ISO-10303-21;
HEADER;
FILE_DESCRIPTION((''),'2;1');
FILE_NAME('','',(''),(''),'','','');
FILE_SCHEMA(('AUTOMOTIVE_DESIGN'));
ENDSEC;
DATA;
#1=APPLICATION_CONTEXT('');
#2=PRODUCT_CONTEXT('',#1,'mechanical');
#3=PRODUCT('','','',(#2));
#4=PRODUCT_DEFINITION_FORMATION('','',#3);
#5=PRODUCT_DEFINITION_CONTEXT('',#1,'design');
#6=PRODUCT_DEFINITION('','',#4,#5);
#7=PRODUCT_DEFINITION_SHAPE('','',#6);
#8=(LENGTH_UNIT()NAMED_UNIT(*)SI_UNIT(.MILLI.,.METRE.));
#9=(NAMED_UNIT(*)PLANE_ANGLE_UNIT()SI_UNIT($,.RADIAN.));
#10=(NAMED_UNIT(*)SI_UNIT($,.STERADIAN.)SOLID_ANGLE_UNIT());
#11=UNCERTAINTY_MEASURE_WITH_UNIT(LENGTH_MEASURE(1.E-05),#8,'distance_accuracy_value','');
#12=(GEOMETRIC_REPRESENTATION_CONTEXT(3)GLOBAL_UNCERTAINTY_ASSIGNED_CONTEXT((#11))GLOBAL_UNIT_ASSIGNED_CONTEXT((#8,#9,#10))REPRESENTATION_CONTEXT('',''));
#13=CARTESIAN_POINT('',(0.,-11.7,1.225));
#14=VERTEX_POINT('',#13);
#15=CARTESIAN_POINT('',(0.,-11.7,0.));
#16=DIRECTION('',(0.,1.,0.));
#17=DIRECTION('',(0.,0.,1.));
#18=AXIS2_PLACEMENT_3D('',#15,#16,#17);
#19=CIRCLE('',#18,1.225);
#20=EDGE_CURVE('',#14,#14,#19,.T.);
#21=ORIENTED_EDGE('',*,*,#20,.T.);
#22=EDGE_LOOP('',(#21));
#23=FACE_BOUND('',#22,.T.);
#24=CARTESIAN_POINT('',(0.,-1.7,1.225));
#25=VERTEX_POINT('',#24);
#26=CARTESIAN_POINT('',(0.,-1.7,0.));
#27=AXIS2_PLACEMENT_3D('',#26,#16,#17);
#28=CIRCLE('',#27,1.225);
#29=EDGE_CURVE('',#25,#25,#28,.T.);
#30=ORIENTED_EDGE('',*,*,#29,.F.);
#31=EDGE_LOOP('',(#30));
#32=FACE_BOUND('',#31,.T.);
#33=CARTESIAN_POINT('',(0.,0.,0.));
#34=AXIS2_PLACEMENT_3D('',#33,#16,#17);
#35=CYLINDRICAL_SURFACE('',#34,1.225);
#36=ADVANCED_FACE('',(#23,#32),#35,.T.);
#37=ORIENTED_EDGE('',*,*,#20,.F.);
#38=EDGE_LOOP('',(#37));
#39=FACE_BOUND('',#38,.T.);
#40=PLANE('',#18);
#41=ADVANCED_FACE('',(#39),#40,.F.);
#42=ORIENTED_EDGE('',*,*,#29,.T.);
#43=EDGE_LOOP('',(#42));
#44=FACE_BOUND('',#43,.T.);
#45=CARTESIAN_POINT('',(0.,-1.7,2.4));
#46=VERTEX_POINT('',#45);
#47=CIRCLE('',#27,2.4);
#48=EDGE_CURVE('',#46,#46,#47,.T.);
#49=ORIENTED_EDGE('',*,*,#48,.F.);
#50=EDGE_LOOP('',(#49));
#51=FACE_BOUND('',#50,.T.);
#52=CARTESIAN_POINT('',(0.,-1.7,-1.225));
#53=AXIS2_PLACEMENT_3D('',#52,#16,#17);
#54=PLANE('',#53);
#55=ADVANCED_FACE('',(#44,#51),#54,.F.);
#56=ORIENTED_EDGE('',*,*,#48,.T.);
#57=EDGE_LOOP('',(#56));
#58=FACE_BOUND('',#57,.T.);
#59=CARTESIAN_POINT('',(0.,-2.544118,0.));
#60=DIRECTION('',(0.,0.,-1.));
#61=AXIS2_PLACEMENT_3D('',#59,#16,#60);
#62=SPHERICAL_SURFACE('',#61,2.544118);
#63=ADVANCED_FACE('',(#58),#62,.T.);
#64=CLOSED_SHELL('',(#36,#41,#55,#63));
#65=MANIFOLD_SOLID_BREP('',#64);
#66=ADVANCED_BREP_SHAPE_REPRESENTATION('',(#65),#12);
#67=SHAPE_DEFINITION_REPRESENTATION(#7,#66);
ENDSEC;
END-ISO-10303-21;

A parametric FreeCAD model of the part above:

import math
import FreeCAD as App
import Part
import Sketcher

V = App.Vector
Q = App.Units.Quantity

doc = App.newDocument("Part")
params = doc.addObject("Spreadsheet::Sheet", "Params")
for row, (alias, value) in enumerate([
    ("sketch1_width", "10 mm"),
    ("sketch1_width2", "11.7 mm"),
    ("revolution_angle", "360 deg"),
], start=1):
    params.set(f"A{row}", alias)
    params.set(f"B{row}", "=" + value)
    params.setAlias(f"B{row}", alias)

body = doc.addObject("PartDesign::Body", "Body")

# Sketch on YZ plane
sketch1 = body.newObject("Sketcher::SketchObject", "Sketch")
sketch1.AttachmentSupport = (doc.getObject("YZ_Plane"), [""])
sketch1.MapMode = "FlatFace"
sketch1.addGeometry([
    Part.LineSegment(V(-11.7, 0, 0), V(-11.7, -1.2, 0)),  # 0
    Part.LineSegment(V(-11.7, -1.2, 0), V(-1.7, -1.2, 0)),  # 1
    Part.LineSegment(V(-1.7, -1.2, 0), V(-1.7, -2.4, 0)),  # 2
    Part.ArcOfCircle(Part.Circle(V(-2.5, 0, 0), V(0, 0, 1), 2.5), math.radians(-71), math.radians(0)),  # 3
    Part.LineSegment(V(0, 0, 0), V(-11.7, 0, 0)),  # 4
], False)
sketch1.addConstraint([
    Sketcher.Constraint("Coincident", 0, 2, 1, 1),
    Sketcher.Constraint("Coincident", 1, 2, 2, 1),
    Sketcher.Constraint("Coincident", 2, 2, 3, 1),
    Sketcher.Constraint("Coincident", 3, 2, 4, 1),
    Sketcher.Constraint("Coincident", 4, 2, 0, 1),
    Sketcher.Constraint("Vertical", 0),
    Sketcher.Constraint("Horizontal", 1),
    Sketcher.Constraint("Vertical", 2),
    Sketcher.Constraint("Horizontal", 4),
    Sketcher.Constraint("Coincident", 3, 2, -1, 1),
    Sketcher.Constraint("PointOnObject", 3, 3, -1),
    Sketcher.Constraint("DistanceX", 1, 1, 1, 2, Q("10 mm")),
    Sketcher.Constraint("DistanceX", 4, 2, 4, 1, Q("11.7 mm")),
    Sketcher.Constraint("DistanceY", 2, 2, -1, 1, Q("2.4 mm")),
    Sketcher.Constraint("DistanceY", 0, 2, 0, 1, Q("1.225 mm")),
])
sketch1.setExpression("Constraints[11]", "Params.sketch1_width")
sketch1.setExpression("Constraints[12]", "Params.sketch1_width2")
revolution = body.newObject("PartDesign::Revolution", "Revolution")
revolution.Profile = sketch1
revolution.ReferenceAxis = (sketch1, ["H_Axis"])
revolution.setExpression("Angle", "Params.revolution_angle")

doc.recompute()
